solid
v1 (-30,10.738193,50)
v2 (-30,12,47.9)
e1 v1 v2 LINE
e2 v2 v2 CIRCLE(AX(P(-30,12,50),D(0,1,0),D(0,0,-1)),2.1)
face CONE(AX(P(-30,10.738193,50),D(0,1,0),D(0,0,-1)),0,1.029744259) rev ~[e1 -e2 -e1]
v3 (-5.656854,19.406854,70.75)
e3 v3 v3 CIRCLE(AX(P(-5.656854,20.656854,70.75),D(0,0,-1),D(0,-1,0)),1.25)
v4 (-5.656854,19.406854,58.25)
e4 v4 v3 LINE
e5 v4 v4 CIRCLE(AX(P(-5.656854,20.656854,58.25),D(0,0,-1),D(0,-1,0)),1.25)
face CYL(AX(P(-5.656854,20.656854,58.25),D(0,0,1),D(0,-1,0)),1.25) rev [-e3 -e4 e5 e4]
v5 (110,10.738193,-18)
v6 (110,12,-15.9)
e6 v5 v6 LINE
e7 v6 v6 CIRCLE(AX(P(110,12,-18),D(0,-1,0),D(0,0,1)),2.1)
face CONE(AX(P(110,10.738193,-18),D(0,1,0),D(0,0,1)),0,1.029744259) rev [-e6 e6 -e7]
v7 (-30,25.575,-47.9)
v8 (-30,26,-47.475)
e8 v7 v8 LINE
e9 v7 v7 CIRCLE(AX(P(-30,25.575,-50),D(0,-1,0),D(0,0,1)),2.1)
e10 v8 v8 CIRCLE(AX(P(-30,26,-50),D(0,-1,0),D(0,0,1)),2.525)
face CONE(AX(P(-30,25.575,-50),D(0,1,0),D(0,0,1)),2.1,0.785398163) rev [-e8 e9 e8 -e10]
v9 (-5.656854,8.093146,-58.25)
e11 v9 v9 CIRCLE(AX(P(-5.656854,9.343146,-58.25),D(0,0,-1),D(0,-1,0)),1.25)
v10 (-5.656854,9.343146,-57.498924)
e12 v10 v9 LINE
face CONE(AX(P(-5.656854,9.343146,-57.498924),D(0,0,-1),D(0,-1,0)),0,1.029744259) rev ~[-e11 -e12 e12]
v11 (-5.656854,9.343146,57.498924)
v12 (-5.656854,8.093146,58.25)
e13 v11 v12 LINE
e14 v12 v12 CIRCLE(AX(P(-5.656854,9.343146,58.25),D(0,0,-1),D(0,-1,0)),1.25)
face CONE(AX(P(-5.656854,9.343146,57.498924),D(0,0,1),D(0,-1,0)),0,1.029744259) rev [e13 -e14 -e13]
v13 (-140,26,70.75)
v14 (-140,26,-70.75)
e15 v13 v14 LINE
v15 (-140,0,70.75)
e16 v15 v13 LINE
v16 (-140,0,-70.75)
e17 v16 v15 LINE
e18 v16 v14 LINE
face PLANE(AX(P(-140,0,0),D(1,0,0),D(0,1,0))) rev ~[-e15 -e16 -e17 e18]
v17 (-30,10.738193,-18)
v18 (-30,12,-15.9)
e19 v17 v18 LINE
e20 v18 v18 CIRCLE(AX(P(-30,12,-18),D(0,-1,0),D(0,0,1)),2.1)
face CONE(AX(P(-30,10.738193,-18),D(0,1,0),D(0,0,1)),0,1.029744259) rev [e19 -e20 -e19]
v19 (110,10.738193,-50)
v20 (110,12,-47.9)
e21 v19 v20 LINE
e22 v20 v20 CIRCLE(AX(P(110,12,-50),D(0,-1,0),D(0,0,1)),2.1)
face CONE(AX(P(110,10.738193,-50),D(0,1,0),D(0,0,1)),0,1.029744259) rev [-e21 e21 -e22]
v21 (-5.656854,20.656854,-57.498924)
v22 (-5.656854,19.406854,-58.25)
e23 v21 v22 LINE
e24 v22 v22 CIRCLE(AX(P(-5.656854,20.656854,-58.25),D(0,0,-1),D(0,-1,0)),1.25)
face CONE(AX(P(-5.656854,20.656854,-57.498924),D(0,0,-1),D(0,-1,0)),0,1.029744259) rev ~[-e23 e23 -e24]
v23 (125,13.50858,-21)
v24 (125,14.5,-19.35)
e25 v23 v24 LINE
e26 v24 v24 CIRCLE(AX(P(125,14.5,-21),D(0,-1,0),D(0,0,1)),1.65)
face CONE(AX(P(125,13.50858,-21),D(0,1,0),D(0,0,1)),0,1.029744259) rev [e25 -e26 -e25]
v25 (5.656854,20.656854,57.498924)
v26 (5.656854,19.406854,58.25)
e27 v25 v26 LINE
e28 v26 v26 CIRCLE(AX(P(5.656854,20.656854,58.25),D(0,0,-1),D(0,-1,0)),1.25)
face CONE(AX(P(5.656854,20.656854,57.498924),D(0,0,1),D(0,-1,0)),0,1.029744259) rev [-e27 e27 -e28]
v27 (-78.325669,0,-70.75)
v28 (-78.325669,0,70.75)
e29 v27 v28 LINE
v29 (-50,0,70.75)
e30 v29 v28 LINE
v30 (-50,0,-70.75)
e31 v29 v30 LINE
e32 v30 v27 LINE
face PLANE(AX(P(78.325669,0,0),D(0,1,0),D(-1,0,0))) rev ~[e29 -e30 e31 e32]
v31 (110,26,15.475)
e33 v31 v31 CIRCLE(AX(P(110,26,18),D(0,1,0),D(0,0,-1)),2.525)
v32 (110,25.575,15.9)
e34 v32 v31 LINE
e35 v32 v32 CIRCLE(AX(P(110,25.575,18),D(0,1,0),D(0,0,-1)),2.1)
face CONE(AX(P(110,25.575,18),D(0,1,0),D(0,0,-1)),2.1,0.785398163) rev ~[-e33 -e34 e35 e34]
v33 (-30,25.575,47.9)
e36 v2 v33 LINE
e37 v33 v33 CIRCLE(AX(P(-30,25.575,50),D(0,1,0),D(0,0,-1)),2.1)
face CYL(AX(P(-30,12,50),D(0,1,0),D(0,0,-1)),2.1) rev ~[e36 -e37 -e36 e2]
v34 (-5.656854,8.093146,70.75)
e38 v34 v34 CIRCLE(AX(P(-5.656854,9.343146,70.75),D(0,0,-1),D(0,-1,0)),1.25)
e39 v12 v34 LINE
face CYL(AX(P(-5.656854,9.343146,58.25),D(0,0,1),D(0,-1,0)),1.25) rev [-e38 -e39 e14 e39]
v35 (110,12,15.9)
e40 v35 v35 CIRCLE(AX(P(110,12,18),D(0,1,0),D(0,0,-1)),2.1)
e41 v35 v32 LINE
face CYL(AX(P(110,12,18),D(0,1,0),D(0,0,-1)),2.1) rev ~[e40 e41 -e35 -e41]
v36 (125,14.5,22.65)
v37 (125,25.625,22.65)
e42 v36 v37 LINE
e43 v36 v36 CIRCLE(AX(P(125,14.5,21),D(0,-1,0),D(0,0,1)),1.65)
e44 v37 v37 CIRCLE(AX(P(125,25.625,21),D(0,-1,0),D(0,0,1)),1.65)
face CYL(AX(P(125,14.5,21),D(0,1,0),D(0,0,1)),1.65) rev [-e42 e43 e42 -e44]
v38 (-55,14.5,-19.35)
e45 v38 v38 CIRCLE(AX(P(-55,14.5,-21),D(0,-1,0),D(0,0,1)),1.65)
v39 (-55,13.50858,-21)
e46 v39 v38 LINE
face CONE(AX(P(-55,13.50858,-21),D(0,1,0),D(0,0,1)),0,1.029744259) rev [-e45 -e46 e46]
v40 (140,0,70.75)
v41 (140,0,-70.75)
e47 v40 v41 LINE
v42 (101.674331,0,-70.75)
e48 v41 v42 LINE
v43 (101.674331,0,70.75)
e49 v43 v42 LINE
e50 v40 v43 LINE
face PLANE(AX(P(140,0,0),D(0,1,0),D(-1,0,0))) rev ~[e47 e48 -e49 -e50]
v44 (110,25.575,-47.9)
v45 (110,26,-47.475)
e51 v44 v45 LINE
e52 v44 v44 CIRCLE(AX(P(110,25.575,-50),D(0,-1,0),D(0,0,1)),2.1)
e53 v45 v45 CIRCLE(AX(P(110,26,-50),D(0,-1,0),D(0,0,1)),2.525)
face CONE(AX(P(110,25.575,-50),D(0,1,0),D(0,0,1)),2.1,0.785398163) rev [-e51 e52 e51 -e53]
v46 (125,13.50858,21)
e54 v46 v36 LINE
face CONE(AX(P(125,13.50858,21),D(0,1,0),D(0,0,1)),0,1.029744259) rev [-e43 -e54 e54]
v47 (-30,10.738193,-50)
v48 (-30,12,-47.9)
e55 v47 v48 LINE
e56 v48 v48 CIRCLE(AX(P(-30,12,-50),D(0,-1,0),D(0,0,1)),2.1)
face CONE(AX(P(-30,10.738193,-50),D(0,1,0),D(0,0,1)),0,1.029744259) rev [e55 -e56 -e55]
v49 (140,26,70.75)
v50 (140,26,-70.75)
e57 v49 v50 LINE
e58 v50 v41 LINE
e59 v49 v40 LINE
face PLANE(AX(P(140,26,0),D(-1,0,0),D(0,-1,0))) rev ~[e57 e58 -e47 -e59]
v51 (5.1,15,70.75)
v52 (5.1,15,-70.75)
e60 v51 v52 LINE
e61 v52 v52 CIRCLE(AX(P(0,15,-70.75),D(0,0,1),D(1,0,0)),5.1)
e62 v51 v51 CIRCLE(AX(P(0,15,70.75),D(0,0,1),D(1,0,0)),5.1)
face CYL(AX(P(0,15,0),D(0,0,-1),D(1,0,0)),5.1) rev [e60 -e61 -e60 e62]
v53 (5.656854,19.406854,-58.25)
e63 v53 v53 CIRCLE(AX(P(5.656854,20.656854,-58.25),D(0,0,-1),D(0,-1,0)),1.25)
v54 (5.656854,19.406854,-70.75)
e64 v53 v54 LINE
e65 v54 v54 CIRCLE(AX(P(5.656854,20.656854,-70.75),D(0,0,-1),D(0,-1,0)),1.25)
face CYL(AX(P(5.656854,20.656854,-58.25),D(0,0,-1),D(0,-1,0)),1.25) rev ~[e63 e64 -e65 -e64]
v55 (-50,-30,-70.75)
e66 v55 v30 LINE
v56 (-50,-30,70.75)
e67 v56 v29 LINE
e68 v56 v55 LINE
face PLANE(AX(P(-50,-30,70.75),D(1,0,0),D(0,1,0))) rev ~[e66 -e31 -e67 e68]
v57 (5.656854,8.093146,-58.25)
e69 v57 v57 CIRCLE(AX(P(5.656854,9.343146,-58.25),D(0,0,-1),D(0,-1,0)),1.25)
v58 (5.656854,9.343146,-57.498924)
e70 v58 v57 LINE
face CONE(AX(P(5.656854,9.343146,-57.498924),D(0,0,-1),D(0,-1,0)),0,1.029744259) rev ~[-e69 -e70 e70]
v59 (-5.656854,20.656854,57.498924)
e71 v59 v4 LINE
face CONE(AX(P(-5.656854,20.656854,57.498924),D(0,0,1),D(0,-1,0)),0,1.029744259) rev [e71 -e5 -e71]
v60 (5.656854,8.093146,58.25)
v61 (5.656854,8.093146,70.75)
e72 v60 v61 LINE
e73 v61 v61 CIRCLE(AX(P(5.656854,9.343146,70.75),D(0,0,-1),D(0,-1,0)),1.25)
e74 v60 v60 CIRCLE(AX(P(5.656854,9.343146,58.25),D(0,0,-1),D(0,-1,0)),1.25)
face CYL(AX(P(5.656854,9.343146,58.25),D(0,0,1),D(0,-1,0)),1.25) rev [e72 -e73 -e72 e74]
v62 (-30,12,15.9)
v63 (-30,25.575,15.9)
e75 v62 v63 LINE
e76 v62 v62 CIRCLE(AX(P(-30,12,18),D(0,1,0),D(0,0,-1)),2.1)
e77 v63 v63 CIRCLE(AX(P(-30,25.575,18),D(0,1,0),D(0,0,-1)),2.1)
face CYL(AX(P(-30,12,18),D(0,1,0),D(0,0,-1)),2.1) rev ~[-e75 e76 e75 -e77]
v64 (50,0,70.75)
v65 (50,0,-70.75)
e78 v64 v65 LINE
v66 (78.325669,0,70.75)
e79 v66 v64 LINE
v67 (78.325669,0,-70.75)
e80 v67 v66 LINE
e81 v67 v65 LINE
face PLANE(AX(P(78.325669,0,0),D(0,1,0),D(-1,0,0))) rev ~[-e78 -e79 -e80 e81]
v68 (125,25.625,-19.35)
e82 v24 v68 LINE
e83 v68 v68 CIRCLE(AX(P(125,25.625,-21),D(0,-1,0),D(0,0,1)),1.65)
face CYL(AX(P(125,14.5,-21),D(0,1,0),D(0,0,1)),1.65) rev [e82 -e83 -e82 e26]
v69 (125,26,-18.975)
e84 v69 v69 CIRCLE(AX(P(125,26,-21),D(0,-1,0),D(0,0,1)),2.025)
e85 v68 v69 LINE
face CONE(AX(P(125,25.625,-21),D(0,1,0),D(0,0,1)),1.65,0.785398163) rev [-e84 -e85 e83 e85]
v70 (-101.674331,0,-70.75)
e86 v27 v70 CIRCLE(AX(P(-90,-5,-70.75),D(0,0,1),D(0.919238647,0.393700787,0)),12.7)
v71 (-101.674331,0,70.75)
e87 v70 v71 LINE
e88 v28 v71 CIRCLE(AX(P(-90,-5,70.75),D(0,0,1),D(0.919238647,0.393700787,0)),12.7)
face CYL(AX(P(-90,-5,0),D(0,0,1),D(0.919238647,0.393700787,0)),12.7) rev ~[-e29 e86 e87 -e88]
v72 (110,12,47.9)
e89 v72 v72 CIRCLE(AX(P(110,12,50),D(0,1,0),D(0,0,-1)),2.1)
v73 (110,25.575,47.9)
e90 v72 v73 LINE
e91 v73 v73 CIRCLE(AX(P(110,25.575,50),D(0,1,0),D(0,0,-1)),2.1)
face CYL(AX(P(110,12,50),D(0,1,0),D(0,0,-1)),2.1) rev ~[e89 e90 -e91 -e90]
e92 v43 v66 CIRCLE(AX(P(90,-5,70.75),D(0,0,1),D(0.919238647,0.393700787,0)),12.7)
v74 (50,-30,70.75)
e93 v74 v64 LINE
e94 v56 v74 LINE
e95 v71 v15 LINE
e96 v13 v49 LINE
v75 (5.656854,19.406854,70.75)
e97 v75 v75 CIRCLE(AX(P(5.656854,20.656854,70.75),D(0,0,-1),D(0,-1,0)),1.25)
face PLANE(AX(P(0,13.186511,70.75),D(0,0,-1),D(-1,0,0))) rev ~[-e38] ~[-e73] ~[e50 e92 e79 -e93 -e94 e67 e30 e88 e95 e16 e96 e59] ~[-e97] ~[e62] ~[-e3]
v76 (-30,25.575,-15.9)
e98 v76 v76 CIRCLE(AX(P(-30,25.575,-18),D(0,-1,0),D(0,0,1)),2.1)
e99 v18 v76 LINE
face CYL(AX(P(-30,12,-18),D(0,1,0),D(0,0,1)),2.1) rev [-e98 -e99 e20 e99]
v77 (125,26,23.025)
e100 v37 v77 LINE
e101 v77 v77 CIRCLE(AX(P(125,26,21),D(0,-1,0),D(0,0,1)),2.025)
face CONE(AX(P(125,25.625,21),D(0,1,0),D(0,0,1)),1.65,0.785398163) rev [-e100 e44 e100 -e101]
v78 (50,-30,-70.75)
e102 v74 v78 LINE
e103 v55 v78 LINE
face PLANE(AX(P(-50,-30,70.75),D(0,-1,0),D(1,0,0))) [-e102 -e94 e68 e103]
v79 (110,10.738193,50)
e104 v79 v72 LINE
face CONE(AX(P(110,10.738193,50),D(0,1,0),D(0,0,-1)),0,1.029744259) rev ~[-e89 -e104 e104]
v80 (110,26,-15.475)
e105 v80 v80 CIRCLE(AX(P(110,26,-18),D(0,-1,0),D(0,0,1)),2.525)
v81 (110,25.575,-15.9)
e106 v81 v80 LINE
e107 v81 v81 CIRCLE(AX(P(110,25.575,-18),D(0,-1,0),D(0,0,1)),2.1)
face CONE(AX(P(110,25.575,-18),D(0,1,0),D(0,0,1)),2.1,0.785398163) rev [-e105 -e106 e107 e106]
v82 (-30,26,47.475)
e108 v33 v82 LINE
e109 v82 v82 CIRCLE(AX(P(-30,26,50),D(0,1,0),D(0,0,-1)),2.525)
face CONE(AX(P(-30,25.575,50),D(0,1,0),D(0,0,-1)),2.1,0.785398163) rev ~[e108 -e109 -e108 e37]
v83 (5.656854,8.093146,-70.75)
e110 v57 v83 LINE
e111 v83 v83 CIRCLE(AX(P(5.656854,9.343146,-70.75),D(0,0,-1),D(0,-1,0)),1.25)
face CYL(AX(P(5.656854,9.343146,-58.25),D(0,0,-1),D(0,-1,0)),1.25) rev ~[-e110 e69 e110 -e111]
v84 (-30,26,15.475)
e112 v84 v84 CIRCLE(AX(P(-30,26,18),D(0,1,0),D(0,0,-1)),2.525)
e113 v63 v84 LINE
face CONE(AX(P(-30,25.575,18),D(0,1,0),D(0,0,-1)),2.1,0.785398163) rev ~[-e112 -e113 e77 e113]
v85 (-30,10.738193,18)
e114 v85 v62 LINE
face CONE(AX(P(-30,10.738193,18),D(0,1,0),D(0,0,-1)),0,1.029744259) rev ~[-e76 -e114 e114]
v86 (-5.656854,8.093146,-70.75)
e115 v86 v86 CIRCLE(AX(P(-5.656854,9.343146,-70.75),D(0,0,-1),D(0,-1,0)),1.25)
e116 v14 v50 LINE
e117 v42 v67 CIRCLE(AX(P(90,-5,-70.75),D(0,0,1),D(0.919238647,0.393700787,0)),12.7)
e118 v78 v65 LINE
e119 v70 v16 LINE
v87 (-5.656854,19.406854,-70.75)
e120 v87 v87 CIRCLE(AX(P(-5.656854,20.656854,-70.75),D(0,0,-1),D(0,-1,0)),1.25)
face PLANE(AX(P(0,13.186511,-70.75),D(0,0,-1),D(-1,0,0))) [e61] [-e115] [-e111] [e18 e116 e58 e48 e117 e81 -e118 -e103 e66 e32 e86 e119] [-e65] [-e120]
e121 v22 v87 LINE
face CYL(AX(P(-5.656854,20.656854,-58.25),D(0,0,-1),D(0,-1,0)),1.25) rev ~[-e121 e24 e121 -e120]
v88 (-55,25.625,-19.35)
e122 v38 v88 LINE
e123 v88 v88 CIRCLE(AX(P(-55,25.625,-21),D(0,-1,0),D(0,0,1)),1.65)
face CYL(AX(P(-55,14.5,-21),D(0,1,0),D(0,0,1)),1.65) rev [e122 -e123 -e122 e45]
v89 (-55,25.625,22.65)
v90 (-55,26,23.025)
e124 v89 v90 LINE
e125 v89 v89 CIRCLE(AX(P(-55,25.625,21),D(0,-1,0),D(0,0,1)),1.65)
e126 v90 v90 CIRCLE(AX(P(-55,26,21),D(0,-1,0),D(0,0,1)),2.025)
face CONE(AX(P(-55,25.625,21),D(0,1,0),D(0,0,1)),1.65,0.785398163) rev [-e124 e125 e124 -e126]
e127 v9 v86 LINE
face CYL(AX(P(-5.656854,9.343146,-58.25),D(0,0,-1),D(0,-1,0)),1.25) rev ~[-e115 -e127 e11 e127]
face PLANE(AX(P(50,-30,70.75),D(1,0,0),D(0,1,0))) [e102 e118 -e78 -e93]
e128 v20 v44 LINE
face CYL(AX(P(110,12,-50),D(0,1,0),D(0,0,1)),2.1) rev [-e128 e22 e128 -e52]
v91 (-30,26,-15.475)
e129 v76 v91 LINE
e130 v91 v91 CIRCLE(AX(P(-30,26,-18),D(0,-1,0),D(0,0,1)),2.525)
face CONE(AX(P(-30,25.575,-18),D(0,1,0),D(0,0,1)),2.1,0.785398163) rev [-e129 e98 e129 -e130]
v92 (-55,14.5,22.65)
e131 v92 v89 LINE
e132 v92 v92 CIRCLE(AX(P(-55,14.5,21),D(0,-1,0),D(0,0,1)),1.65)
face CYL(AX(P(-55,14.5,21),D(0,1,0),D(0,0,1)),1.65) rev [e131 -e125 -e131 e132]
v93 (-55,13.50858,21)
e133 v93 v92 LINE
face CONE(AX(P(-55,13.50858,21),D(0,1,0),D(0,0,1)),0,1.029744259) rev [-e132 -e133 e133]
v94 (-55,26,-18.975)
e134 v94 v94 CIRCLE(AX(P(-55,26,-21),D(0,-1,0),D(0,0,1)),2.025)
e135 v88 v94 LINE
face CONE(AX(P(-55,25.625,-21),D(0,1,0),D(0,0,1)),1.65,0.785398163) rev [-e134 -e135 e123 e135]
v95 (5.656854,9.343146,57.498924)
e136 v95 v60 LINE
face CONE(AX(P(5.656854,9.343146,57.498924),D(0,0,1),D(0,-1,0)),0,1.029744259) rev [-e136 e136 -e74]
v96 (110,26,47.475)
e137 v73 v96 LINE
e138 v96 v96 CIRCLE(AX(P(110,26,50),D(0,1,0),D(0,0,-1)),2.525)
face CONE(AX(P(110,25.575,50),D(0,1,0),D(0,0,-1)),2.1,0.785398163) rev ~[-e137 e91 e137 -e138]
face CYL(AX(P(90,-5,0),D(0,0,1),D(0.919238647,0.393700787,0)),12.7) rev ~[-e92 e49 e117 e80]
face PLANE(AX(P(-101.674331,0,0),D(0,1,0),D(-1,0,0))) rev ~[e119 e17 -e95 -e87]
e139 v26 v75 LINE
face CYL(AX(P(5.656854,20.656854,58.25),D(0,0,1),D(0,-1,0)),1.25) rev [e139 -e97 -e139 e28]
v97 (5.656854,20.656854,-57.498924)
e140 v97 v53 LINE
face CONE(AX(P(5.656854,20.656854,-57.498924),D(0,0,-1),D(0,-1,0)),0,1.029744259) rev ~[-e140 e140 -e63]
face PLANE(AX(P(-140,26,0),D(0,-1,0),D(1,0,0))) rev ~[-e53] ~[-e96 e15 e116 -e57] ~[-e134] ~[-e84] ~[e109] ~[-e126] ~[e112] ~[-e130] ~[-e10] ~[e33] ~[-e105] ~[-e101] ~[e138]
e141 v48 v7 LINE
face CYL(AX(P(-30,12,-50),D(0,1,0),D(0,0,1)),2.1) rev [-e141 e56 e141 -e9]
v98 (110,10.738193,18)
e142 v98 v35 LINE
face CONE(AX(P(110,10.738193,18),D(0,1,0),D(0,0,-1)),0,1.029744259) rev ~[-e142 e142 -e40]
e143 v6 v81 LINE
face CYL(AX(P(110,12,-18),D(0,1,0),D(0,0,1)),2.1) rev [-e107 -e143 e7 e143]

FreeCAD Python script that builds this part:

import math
import FreeCAD as App
import Part
import Sketcher
from FreeCAD import Vector
Q = App.Units.Quantity


def add_polygon(sketch, points):
    """Adds a closed chain of lines whose ends are joined by coincident constraints."""
    first, n = sketch.GeometryCount, len(points)
    for a, b in zip(points, points[1:] + points[:1]):
        sketch.addGeometry(Part.LineSegment(App.Vector(*a, 0), App.Vector(*b, 0)), False)
    for i in range(n):
        sketch.addConstraint(Sketcher.Constraint("Coincident", first + i, 2, first + (i + 1) % n, 1))

doc = App.newDocument("Part")
body = doc.addObject("PartDesign::Body", "Body")

# Sketch on XY plane
sketch1 = body.newObject("Sketcher::SketchObject", "Sketch")
sketch1.AttachmentSupport = (doc.getObject("XY_Plane"), [""])
sketch1.MapMode = "FlatFace"
sketch1.addGeometry([
    Part.LineSegment(Vector(-140, 26, 0), Vector(-140, 0, 0)),  # 0
    Part.LineSegment(Vector(-140, 0, 0), Vector(-101.674331, 0, 0)),  # 1
    Part.ArcOfCircle(Part.Circle(Vector(-90, -5, 0), Vector(0, 0, 1), 12.7), math.radians(23.18497), math.radians(156.81503)),  # 2
    Part.LineSegment(Vector(-78.325669, 0, 0), Vector(78.325669, 0, 0)),  # 3
    Part.ArcOfCircle(Part.Circle(Vector(90, -5, 0), Vector(0, 0, 1), 12.7), math.radians(23.18497), math.radians(156.81503)),  # 4
    Part.LineSegment(Vector(101.674331, 0, 0), Vector(140, 0, 0)),  # 5
    Part.LineSegment(Vector(140, 0, 0), Vector(140, 26, 0)),  # 6
    Part.LineSegment(Vector(140, 26, 0), Vector(-140, 26, 0)),  # 7
    Part.Circle(Vector(0, 15, 0), Vector(0, 0, 1), 5.1),  # 8
], False)
sketch1.addConstraint([
    Sketcher.Constraint("Coincident", 0, 2, 1, 1),
    Sketcher.Constraint("Coincident", 1, 2, 2, 2),
    Sketcher.Constraint("Coincident", 2, 1, 3, 1),
    Sketcher.Constraint("Coincident", 3, 2, 4, 2),
    Sketcher.Constraint("Coincident", 4, 1, 5, 1),
    Sketcher.Constraint("Coincident", 5, 2, 6, 1),
    Sketcher.Constraint("Coincident", 6, 2, 7, 1),
    Sketcher.Constraint("Coincident", 7, 2, 0, 1),
    Sketcher.Constraint("Vertical", 0),
    Sketcher.Constraint("Horizontal", 1),
    Sketcher.Constraint("Horizontal", 3),
    Sketcher.Constraint("Horizontal", 5),
    Sketcher.Constraint("Vertical", 6),
    Sketcher.Constraint("Horizontal", 7),
    Sketcher.Constraint("Equal", 2, 4),
    Sketcher.Constraint("Symmetric", 2, 1, 3, 2, -1, 1),
    Sketcher.Constraint("Symmetric", 1, 2, 4, 1, -1, 1),
    Sketcher.Constraint("Symmetric", 0, 2, 5, 2, -2),
    Sketcher.Constraint("PointOnObject", 8, 3, -2),
    Sketcher.Constraint("Diameter", 8, 10.2),
    Sketcher.Constraint("Radius", 2, 12.7),
    Sketcher.Constraint("DistanceX", 7, 2, 7, 1, 280.0),
    Sketcher.Constraint("DistanceY", 0, 2, 0, 1, 26.0),
    Sketcher.Constraint("DistanceX", 2, 3, -1, 1, 90.0),
    Sketcher.Constraint("DistanceY", 2, 3, -1, 1, 5.0),
    Sketcher.Constraint("DistanceY", -1, 1, 8, 3, 15.0),
])
pad1 = body.newObject("PartDesign::Pad", "Pad")
pad1.Profile = sketch1
pad1.Length = 141.5
pad1.Midplane = True

# Sketch on YZ plane
sketch2 = body.newObject("Sketcher::SketchObject", "Sketch001")
sketch2.AttachmentSupport = (doc.getObject("YZ_Plane"), [""])
sketch2.MapMode = "FlatFace"
sketch2.AttachmentOffset = App.Placement(Vector(0, 0, 110), App.Rotation())
add_polygon(sketch2, [(10.738193, -50), (26, -50), (26, -47.475), (25.575, -47.9), (12, -47.9)])  # lines 0-4
sketch2.addGeometry(Part.LineSegment(Vector(26, -50, 0), Vector(10.738193, -50, 0)), True)  # axis
sketch2.addConstraint([
    Sketcher.Constraint("Horizontal", 0),
    Sketcher.Constraint("Vertical", 1),
    Sketcher.Constraint("Horizontal", 3),
    Sketcher.Constraint("Horizontal", 5),
    Sketcher.Constraint("Coincident", 5, 1, 0, 2),
    Sketcher.Constraint("Equal", 0, 5),
    Sketcher.Constraint("Angle", 2, Q("-135 deg")),
    Sketcher.Constraint("Angle", 4, Q("-121 deg")),
    Sketcher.Constraint("DistanceX", -1, 1, 0, 2, 26.0),
    Sketcher.Constraint("DistanceY", 0, 2, -1, 1, 50.0),
    Sketcher.Constraint("DistanceX", -1, 1, 3, 2, 12.0),
    Sketcher.Constraint("DistanceY", 2, 2, -1, 1, 47.9),
    Sketcher.Constraint("DistanceX", 3, 2, 3, 1, 13.575),
])
groove = body.newObject("PartDesign::Groove", "Groove")
groove.Profile = sketch2
groove.ReferenceAxis = (sketch2, ["Axis0"])
groove.Angle = 360
doc.recompute()

linearpattern = body.newObject("PartDesign::LinearPattern", "LinearPattern")
linearpattern.Originals = [groove]
linearpattern.Direction = (doc.getObject("Z_Axis"), [""])
linearpattern.Mode = "offset"
linearpattern.Offset = 32
linearpattern.Occurrences = 2
body.Tip = linearpattern

# Sketch on YZ plane
sketch3 = body.newObject("Sketcher::SketchObject", "Sketch002")
sketch3.AttachmentSupport = (doc.getObject("YZ_Plane"), [""])
sketch3.MapMode = "FlatFace"
sketch3.AttachmentOffset = App.Placement(Vector(0, 0, -5.656854), App.Rotation())
add_polygon(sketch3, [(20.656854, 57.498924), (20.656854, 70.75), (19.406854, 70.75), (19.406854, 58.25)])  # lines 0-3
sketch3.addGeometry(Part.LineSegment(Vector(20.656854, 70.75, 0), Vector(20.656854, 57.498924, 0)), True)  # axis
sketch3.addConstraint([
    Sketcher.Constraint("Vertical", 0),
    Sketcher.Constraint("Horizontal", 1),
    Sketcher.Constraint("Vertical", 2),
    Sketcher.Constraint("Vertical", 4),
    Sketcher.Constraint("Coincident", 4, 1, 0, 2),
    Sketcher.Constraint("Equal", 0, 4),
    Sketcher.Constraint("Angle", 3, Q("-31 deg")),
    Sketcher.Constraint("DistanceY", 2, 2, 2, 1, 12.5),
    Sketcher.Constraint("DistanceX", 1, 2, 1, 1, 1.25),
    Sketcher.Constraint("DistanceY", -1, 1, 0, 2, 70.75),
    Sketcher.Constraint("DistanceX", -1, 1, 0, 2, 20.656854),
])
groove2 = body.newObject("PartDesign::Groove", "Groove001")
groove2.Profile = sketch3
groove2.ReferenceAxis = (sketch3, ["Axis0"])
groove2.Angle = 360
doc.recompute()

linearpattern2 = body.newObject("PartDesign::LinearPattern", "LinearPattern001")
linearpattern2.Originals = [groove2]
linearpattern2.Direction = (doc.getObject("X_Axis"), [""])
linearpattern2.Mode = "offset"
linearpattern2.Offset = 11.313708
linearpattern2.Occurrences = 2
body.Tip = linearpattern2
doc.recompute()

linearpattern3 = body.newObject("PartDesign::LinearPattern", "LinearPattern002")
linearpattern3.Originals = [groove2]
linearpattern3.Direction = (doc.getObject("Y_Axis"), [""])
linearpattern3.Mode = "offset"
linearpattern3.Offset = 11.313708
linearpattern3.Occurrences = 2
linearpattern3.Reversed = True
body.Tip = linearpattern3
doc.recompute()

datumline = body.newObject("PartDesign::Line", "DatumLine")
datumline.Placement = App.Placement(Vector(0, 0, 0), App.Rotation(Vector(0, 0, 1), Vector(0.707106781, -0.707106781, 0)))
linearpattern4 = body.newObject("PartDesign::LinearPattern", "LinearPattern003")
linearpattern4.Originals = [groove2]
linearpattern4.Direction = (datumline, [""])
linearpattern4.Mode = "offset"
linearpattern4.Offset = 16
linearpattern4.Occurrences = 2
body.Tip = linearpattern4
doc.recompute()

mirrored = body.newObject("PartDesign::Mirrored", "Mirrored")
mirrored.Originals = [groove2]
mirrored.MirrorPlane = (doc.getObject("XY_Plane"), [""])
body.Tip = mirrored

# Sketch on YZ plane
sketch4 = body.newObject("Sketcher::SketchObject", "Sketch003")
sketch4.AttachmentSupport = (doc.getObject("YZ_Plane"), [""])
sketch4.MapMode = "FlatFace"
sketch4.AttachmentOffset = App.Placement(Vector(0, 0, 5.656854), App.Rotation())
add_polygon(sketch4, [(20.656854, -70.75), (20.656854, -57.498924), (19.406854, -58.25), (19.406854, -70.75)])  # lines 0-3
sketch4.addGeometry(Part.LineSegment(Vector(20.656854, -57.498924, 0), Vector(20.656854, -70.75, 0)), True)  # axis
sketch4.addConstraint([
    Sketcher.Constraint("Vertical", 0),
    Sketcher.Constraint("Vertical", 2),
    Sketcher.Constraint("Horizontal", 3),
    Sketcher.Constraint("Vertical", 4),
    Sketcher.Constraint("Coincident", 4, 1, 0, 2),
    Sketcher.Constraint("Horizontal", 2, 2, 4, 2),
    Sketcher.Constraint("Angle", 1, Q("-149 deg")),
    Sketcher.Constraint("DistanceY", 2, 2, 2, 1, 12.5),
    Sketcher.Constraint("DistanceX", 3, 1, 3, 2, 1.25),
    Sketcher.Constraint("DistanceY", 1, 2, -1, 1, 58.25),
    Sketcher.Constraint("DistanceX", -1, 1, 0, 2, 20.656854),
])
groove3 = body.newObject("PartDesign::Groove", "Groove002")
groove3.Profile = sketch4
groove3.ReferenceAxis = (sketch4, ["Axis0"])
groove3.Angle = 360

# Sketch on YZ plane
sketch5 = body.newObject("Sketcher::SketchObject", "Sketch004")
sketch5.AttachmentSupport = (doc.getObject("YZ_Plane"), [""])
sketch5.MapMode = "FlatFace"
sketch5.AttachmentOffset = App.Placement(Vector(0, 0, -5.656854), App.Rotation())
add_polygon(sketch5, [(9.343146, -70.75), (9.343146, -57.498924), (8.093146, -58.25), (8.093146, -70.75)])  # lines 0-3
sketch5.addGeometry(Part.LineSegment(Vector(9.343146, -57.498924, 0), Vector(9.343146, -70.75, 0)), True)  # axis
sketch5.addConstraint([
    Sketcher.Constraint("Vertical", 0),
    Sketcher.Constraint("Vertical", 2),
    Sketcher.Constraint("Horizontal", 3),
    Sketcher.Constraint("Vertical", 4),
    Sketcher.Constraint("Coincident", 4, 1, 0, 2),
    Sketcher.Constraint("Horizontal", 2, 2, 4, 2),
    Sketcher.Constraint("Angle", 1, Q("-149 deg")),
    Sketcher.Constraint("DistanceY", 2, 2, 2, 1, 12.5),
    Sketcher.Constraint("DistanceX", 3, 1, 3, 2, 1.25),
    Sketcher.Constraint("DistanceY", 1, 2, -1, 1, 58.25),
    Sketcher.Constraint("DistanceX", -1, 1, 0, 2, 9.343146),
])
groove4 = body.newObject("PartDesign::Groove", "Groove003")
groove4.Profile = sketch5
groove4.ReferenceAxis = (sketch5, ["Axis0"])
groove4.Angle = 360

# Sketch on YZ plane
sketch6 = body.newObject("Sketcher::SketchObject", "Sketch005")
sketch6.AttachmentSupport = (doc.getObject("YZ_Plane"), [""])
sketch6.MapMode = "FlatFace"
sketch6.AttachmentOffset = App.Placement(Vector(0, 0, 5.656854), App.Rotation())
add_polygon(sketch6, [(9.343146, -70.75), (9.343146, -57.498924), (8.093146, -58.25), (8.093146, -70.75)])  # lines 0-3
sketch6.addGeometry(Part.LineSegment(Vector(9.343146, -57.498924, 0), Vector(9.343146, -70.75, 0)), True)  # axis
sketch6.addConstraint([
    Sketcher.Constraint("Vertical", 0),
    Sketcher.Constraint("Vertical", 2),
    Sketcher.Constraint("Horizontal", 3),
    Sketcher.Constraint("Vertical", 4),
    Sketcher.Constraint("Coincident", 4, 1, 0, 2),
    Sketcher.Constraint("Horizontal", 2, 2, 4, 2),
    Sketcher.Constraint("Angle", 1, Q("-149 deg")),
    Sketcher.Constraint("DistanceY", 2, 2, 2, 1, 12.5),
    Sketcher.Constraint("DistanceX", 3, 1, 3, 2, 1.25),
    Sketcher.Constraint("DistanceY", 1, 2, -1, 1, 58.25),
    Sketcher.Constraint("DistanceX", -1, 1, 0, 2, 9.343146),
])
groove5 = body.newObject("PartDesign::Groove", "Groove004")
groove5.Profile = sketch6
groove5.ReferenceAxis = (sketch6, ["Axis0"])
groove5.Angle = 360

# Sketch on YZ plane
sketch7 = body.newObject("Sketcher::SketchObject", "Sketch006")
sketch7.AttachmentSupport = (doc.getObject("YZ_Plane"), [""])
sketch7.MapMode = "FlatFace"
sketch7.AttachmentOffset = App.Placement(Vector(0, 0, -55), App.Rotation())
add_polygon(sketch7, [(13.50858, -21), (26, -21), (26, -18.975), (25.625, -19.35), (14.5, -19.35)])  # lines 0-4
sketch7.addGeometry(Part.LineSegment(Vector(26, -21, 0), Vector(13.50858, -21, 0)), True)  # axis
sketch7.addConstraint([
    Sketcher.Constraint("Horizontal", 0),
    Sketcher.Constraint("Vertical", 1),
    Sketcher.Constraint("Horizontal", 3),
    Sketcher.Constraint("Horizontal", 5),
    Sketcher.Constraint("Coincident", 5, 1, 0, 2),
    Sketcher.Constraint("Equal", 0, 5),
    Sketcher.Constraint("Angle", 2, Q("-135 deg")),
    Sketcher.Constraint("Angle", 4, Q("-121 deg")),
    Sketcher.Constraint("DistanceX", -1, 1, 0, 2, 26.0),
    Sketcher.Constraint("DistanceY", 0, 2, -1, 1, 21.0),
    Sketcher.Constraint("DistanceX", -1, 1, 3, 2, 14.5),
    Sketcher.Constraint("DistanceX", 3, 2, 3, 1, 11.125),
    Sketcher.Constraint("DistanceY", 1, 1, 1, 2, 2.025),
])
groove6 = body.newObject("PartDesign::Groove", "Groove005")
groove6.Profile = sketch7
groove6.ReferenceAxis = (sketch7, ["Axis0"])
groove6.Angle = 360
doc.recompute()

linearpattern5 = body.newObject("PartDesign::LinearPattern", "LinearPattern004")
linearpattern5.Originals = [groove6]
linearpattern5.Direction = (doc.getObject("Z_Axis"), [""])
linearpattern5.Mode = "offset"
linearpattern5.Offset = 42
linearpattern5.Occurrences = 2
body.Tip = linearpattern5
doc.recompute()

linearpattern6 = body.newObject("PartDesign::LinearPattern", "LinearPattern005")
linearpattern6.Originals = [groove6]
linearpattern6.Direction = (doc.getObject("X_Axis"), [""])
linearpattern6.Mode = "offset"
linearpattern6.Offset = 180
linearpattern6.Occurrences = 2
body.Tip = linearpattern6

# Sketch on YZ plane
sketch8 = body.newObject("Sketcher::SketchObject", "Sketch007")
sketch8.AttachmentSupport = (doc.getObject("YZ_Plane"), [""])
sketch8.MapMode = "FlatFace"
sketch8.AttachmentOffset = App.Placement(Vector(0, 0, 125), App.Rotation())
add_polygon(sketch8, [(13.50858, 21), (26, 21), (26, 23.025), (25.625, 22.65), (14.5, 22.65)])  # lines 0-4
sketch8.addGeometry(Part.LineSegment(Vector(26, 21, 0), Vector(13.50858, 21, 0)), True)  # axis
sketch8.addConstraint([
    Sketcher.Constraint("Horizontal", 0),
    Sketcher.Constraint("Vertical", 1),
    Sketcher.Constraint("Horizontal", 3),
    Sketcher.Constraint("Horizontal", 5),
    Sketcher.Constraint("Coincident", 5, 1, 0, 2),
    Sketcher.Constraint("Equal", 0, 5),
    Sketcher.Constraint("Angle", 2, Q("-135 deg")),
    Sketcher.Constraint("Angle", 4, Q("-121 deg")),
    Sketcher.Constraint("DistanceX", -1, 1, 0, 2, 26.0),
    Sketcher.Constraint("DistanceY", -1, 1, 0, 2, 21.0),
    Sketcher.Constraint("DistanceX", -1, 1, 3, 2, 14.5),
    Sketcher.Constraint("DistanceX", 3, 2, 3, 1, 11.125),
    Sketcher.Constraint("DistanceY", 1, 1, 1, 2, 2.025),
])
groove7 = body.newObject("PartDesign::Groove", "Groove006")
groove7.Profile = sketch8
groove7.ReferenceAxis = (sketch8, ["Axis0"])
groove7.Angle = 360

# Sketch on XY plane
sketch9 = body.newObject("Sketcher::SketchObject", "Sketch008")
sketch9.AttachmentSupport = (doc.getObject("XY_Plane"), [""])
sketch9.MapMode = "FlatFace"
sketch9.AttachmentOffset = App.Placement(Vector(0, 0, 70.75), App.Rotation())
add_polygon(sketch9, [(-50, 0), (-50, -30), (50, -30), (50, 0)])  # lines 0-3
sketch9.addConstraint([
    Sketcher.Constraint("Vertical", 0),
    Sketcher.Constraint("Horizontal", 1),
    Sketcher.Constraint("Vertical", 2),
    Sketcher.Constraint("Horizontal", 3),
    Sketcher.Constraint("Symmetric", 2, 2, 3, 2, -1, 1),
    Sketcher.Constraint("DistanceX", 1, 1, 1, 2, 100.0),
    Sketcher.Constraint("DistanceY", 0, 2, 0, 1, 30.0),
])
pad2 = body.newObject("PartDesign::Pad", "Pad001")
pad2.Profile = sketch9
pad2.Length = 141.5
pad2.Reversed = True
doc.recompute()

linearpattern7 = body.newObject("PartDesign::LinearPattern", "LinearPattern006")
linearpattern7.Originals = [groove]
linearpattern7.Direction = (doc.getObject("X_Axis"), [""])
linearpattern7.Mode = "offset"
linearpattern7.Offset = 140
linearpattern7.Occurrences = 2
linearpattern7.Reversed = True
body.Tip = linearpattern7

# Sketch on YZ plane
sketch10 = body.newObject("Sketcher::SketchObject", "Sketch009")
sketch10.AttachmentSupport = (doc.getObject("YZ_Plane"), [""])
sketch10.MapMode = "FlatFace"
sketch10.AttachmentOffset = App.Placement(Vector(0, 0, -30), App.Rotation())
add_polygon(sketch10, [(10.738193, -18), (26, -18), (26, -15.475), (25.575, -15.9), (12, -15.9)])  # lines 0-4
sketch10.addGeometry(Part.LineSegment(Vector(26, -18, 0), Vector(10.738193, -18, 0)), True)  # axis
sketch10.addConstraint([
    Sketcher.Constraint("Horizontal", 0),
    Sketcher.Constraint("Vertical", 1),
    Sketcher.Constraint("Horizontal", 3),
    Sketcher.Constraint("Horizontal", 5),
    Sketcher.Constraint("Coincident", 5, 1, 0, 2),
    Sketcher.Constraint("Equal", 0, 5),
    Sketcher.Constraint("Angle", 2, Q("-135 deg")),
    Sketcher.Constraint("Angle", 4, Q("-121 deg")),
    Sketcher.Constraint("DistanceX", -1, 1, 0, 2, 26.0),
    Sketcher.Constraint("DistanceY", 0, 2, -1, 1, 18.0),
    Sketcher.Constraint("DistanceX", -1, 1, 3, 2, 12.0),
    Sketcher.Constraint("DistanceY", 2, 2, -1, 1, 15.9),
    Sketcher.Constraint("DistanceX", 3, 2, 3, 1, 13.575),
])
groove8 = body.newObject("PartDesign::Groove", "Groove007")
groove8.Profile = sketch10
groove8.ReferenceAxis = (sketch10, ["Axis0"])
groove8.Angle = 360
doc.recompute()

mirrored2 = body.newObject("PartDesign::Mirrored", "Mirrored001")
mirrored2.Originals = [groove]
mirrored2.MirrorPlane = (doc.getObject("XY_Plane"), [""])
body.Tip = mirrored2

# Sketch on YZ plane
sketch11 = body.newObject("Sketcher::SketchObject", "Sketch010")
sketch11.AttachmentSupport = (doc.getObject("YZ_Plane"), [""])
sketch11.MapMode = "FlatFace"
sketch11.AttachmentOffset = App.Placement(Vector(0, 0, 110), App.Rotation())
add_polygon(sketch11, [(26, 18), (10.738193, 18), (12, 15.9), (25.575, 15.9), (26, 15.475)])  # lines 0-4
sketch11.addGeometry(Part.LineSegment(Vector(10.738193, 18, 0), Vector(26, 18, 0)), True)  # axis
sketch11.addConstraint([
    Sketcher.Constraint("Horizontal", 0),
    Sketcher.Constraint("Horizontal", 2),
    Sketcher.Constraint("Vertical", 4),
    Sketcher.Constraint("Horizontal", 5),
    Sketcher.Constraint("Coincident", 5, 1, 0, 2),
    Sketcher.Constraint("Vertical", 3, 2, 5, 2),
    Sketcher.Constraint("Angle", 1, Q("-59 deg")),
    Sketcher.Constraint("Angle", 3, Q("-45 deg")),
    Sketcher.Constraint("DistanceY", -1, 1, 0, 2, 18.0),
    Sketcher.Constraint("DistanceX", -1, 1, 1, 2, 12.0),
    Sketcher.Constraint("DistanceX", -1, 1, 3, 2, 26.0),
    Sketcher.Constraint("DistanceY", -1, 1, 1, 2, 15.9),
    Sketcher.Constraint("DistanceX", 2, 1, 2, 2, 13.575),
])
groove9 = body.newObject("PartDesign::Groove", "Groove008")
groove9.Profile = sketch11
groove9.ReferenceAxis = (sketch11, ["Axis0"])
groove9.Angle = 360

# Sketch on YZ plane
sketch12 = body.newObject("Sketcher::SketchObject", "Sketch011")
sketch12.AttachmentSupport = (doc.getObject("YZ_Plane"), [""])
sketch12.MapMode = "FlatFace"
sketch12.AttachmentOffset = App.Placement(Vector(0, 0, -30), App.Rotation())
add_polygon(sketch12, [(26, 50), (10.738193, 50), (12, 47.9), (25.575, 47.9), (26, 47.475)])  # lines 0-4
sketch12.addGeometry(Part.LineSegment(Vector(10.738193, 50, 0), Vector(26, 50, 0)), True)  # axis
sketch12.addConstraint([
    Sketcher.Constraint("Horizontal", 0),
    Sketcher.Constraint("Horizontal", 2),
    Sketcher.Constraint("Vertical", 4),
    Sketcher.Constraint("Horizontal", 5),
    Sketcher.Constraint("Coincident", 5, 1, 0, 2),
    Sketcher.Constraint("Vertical", 3, 2, 5, 2),
    Sketcher.Constraint("Angle", 1, Q("-59 deg")),
    Sketcher.Constraint("Angle", 3, Q("-45 deg")),
    Sketcher.Constraint("DistanceY", -1, 1, 0, 2, 50.0),
    Sketcher.Constraint("DistanceX", -1, 1, 1, 2, 12.0),
    Sketcher.Constraint("DistanceX", -1, 1, 3, 2, 26.0),
    Sketcher.Constraint("DistanceY", -1, 1, 1, 2, 47.9),
    Sketcher.Constraint("DistanceX", 2, 1, 2, 2, 13.575),
])
groove10 = body.newObject("PartDesign::Groove", "Groove009")
groove10.Profile = sketch12
groove10.ReferenceAxis = (sketch12, ["Axis0"])
groove10.Angle = 360

# Sketch on YZ plane
sketch13 = body.newObject("Sketcher::SketchObject", "Sketch012")
sketch13.AttachmentSupport = (doc.getObject("YZ_Plane"), [""])
sketch13.MapMode = "FlatFace"
sketch13.AttachmentOffset = App.Placement(Vector(0, 0, -30), App.Rotation())
add_polygon(sketch13, [(26, 18), (10.738193, 18), (12, 15.9), (25.575, 15.9), (26, 15.475)])  # lines 0-4
sketch13.addGeometry(Part.LineSegment(Vector(10.738193, 18, 0), Vector(26, 18, 0)), True)  # axis
sketch13.addConstraint([
    Sketcher.Constraint("Horizontal", 0),
    Sketcher.Constraint("Horizontal", 2),
    Sketcher.Constraint("Vertical", 4),
    Sketcher.Constraint("Horizontal", 5),
    Sketcher.Constraint("Coincident", 5, 1, 0, 2),
    Sketcher.Constraint("Vertical", 3, 2, 5, 2),
    Sketcher.Constraint("Angle", 1, Q("-59 deg")),
    Sketcher.Constraint("Angle", 3, Q("-45 deg")),
    Sketcher.Constraint("DistanceY", -1, 1, 0, 2, 18.0),
    Sketcher.Constraint("DistanceX", -1, 1, 1, 2, 12.0),
    Sketcher.Constraint("DistanceX", -1, 1, 3, 2, 26.0),
    Sketcher.Constraint("DistanceY", -1, 1, 1, 2, 15.9),
    Sketcher.Constraint("DistanceX", 2, 1, 2, 2, 13.575),
])
groove11 = body.newObject("PartDesign::Groove", "Groove010")
groove11.Profile = sketch13
groove11.ReferenceAxis = (sketch13, ["Axis0"])
groove11.Angle = 360

doc.recompute()
